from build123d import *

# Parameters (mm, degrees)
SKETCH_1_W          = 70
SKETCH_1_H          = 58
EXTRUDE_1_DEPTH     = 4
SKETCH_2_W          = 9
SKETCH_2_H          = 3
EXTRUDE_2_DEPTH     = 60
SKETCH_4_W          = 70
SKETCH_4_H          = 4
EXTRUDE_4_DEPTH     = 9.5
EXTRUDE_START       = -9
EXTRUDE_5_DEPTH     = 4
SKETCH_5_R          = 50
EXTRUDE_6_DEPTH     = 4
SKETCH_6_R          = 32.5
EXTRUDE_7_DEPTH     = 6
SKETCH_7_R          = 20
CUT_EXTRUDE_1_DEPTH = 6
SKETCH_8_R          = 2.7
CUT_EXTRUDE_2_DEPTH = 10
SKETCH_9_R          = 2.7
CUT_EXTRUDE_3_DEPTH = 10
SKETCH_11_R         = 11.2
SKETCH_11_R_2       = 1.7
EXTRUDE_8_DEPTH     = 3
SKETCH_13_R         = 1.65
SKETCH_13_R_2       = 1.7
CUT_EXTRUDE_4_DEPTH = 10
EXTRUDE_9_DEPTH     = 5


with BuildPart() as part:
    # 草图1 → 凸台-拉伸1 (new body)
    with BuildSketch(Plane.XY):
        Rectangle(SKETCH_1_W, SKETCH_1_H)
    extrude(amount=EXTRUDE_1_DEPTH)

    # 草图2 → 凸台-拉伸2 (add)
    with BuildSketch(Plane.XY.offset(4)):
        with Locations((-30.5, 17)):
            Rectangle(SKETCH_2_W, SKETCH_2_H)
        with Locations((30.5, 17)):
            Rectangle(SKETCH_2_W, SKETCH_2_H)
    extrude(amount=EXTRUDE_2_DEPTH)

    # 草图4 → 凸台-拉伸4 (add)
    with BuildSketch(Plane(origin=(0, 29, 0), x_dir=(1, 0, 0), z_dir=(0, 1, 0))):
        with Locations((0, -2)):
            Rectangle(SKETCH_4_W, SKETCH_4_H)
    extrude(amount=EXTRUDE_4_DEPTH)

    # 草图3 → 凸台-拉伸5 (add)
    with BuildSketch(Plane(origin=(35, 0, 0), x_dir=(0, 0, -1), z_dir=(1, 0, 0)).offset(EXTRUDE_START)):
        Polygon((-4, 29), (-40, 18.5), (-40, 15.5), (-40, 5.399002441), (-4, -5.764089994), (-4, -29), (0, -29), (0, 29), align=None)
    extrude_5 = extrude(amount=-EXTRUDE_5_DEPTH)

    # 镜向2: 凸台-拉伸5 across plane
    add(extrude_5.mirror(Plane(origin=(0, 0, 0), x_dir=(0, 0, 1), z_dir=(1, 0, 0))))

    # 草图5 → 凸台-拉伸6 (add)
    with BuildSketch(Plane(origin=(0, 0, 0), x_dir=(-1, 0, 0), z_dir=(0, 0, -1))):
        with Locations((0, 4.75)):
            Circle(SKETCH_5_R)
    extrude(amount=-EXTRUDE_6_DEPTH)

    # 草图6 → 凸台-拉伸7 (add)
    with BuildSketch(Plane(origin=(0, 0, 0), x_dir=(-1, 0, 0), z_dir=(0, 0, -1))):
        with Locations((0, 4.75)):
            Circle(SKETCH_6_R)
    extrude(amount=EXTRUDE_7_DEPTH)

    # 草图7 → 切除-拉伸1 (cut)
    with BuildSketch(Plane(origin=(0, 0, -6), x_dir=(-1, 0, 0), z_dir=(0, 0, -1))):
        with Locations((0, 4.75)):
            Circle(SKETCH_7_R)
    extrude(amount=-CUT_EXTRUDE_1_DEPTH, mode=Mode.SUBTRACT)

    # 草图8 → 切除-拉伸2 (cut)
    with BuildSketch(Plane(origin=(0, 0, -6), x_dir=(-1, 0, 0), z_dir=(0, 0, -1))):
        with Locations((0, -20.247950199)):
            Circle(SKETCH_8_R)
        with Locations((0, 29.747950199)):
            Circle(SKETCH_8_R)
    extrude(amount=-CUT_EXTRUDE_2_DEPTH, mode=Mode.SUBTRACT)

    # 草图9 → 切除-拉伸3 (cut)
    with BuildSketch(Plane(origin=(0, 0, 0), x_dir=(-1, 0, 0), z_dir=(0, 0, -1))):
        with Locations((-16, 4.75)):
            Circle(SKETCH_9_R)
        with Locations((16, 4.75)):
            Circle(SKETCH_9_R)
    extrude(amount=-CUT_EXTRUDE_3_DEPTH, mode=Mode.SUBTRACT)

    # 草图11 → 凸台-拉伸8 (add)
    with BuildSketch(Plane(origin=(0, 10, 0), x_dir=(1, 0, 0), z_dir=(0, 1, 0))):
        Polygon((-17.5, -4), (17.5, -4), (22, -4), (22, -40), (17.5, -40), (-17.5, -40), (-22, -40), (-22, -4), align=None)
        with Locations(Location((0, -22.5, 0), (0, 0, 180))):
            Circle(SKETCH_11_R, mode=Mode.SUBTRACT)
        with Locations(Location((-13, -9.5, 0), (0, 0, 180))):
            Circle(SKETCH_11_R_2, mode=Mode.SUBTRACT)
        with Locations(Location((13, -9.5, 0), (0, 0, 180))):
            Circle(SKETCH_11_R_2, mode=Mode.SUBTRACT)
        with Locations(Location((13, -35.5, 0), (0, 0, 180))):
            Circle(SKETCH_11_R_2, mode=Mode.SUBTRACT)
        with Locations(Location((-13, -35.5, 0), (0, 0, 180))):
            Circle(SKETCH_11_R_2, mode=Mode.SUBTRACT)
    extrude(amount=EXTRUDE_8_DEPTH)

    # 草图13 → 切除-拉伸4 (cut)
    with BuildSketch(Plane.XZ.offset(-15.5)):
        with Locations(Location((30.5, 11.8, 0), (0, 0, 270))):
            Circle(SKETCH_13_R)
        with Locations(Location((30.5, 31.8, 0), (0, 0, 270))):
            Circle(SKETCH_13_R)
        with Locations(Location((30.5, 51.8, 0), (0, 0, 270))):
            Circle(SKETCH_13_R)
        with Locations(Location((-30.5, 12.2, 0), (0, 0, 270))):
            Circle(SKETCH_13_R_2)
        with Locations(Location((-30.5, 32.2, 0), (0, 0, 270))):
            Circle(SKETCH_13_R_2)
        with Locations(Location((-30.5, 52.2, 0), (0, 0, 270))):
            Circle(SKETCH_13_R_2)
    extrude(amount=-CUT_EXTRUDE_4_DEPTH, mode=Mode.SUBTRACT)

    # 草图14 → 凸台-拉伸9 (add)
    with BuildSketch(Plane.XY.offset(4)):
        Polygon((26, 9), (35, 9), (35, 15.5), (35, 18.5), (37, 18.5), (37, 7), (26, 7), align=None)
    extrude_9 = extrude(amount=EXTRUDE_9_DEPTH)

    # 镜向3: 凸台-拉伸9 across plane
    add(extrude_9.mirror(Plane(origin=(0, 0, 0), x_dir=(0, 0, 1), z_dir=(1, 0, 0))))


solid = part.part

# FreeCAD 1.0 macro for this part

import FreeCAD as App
import Part
import Sketcher
from FreeCAD import Vector
Q = App.Units.Quantity

doc = App.newDocument("Part")
body = doc.addObject("PartDesign::Body", "Body")

# Sketch on XY plane
sketch1 = doc.addObject("Sketcher::SketchObject", "Sketch")
body.addObject(sketch1)
sketch1.AttachmentSupport = (doc.XY_Plane, [""])
sketch1.MapMode = "FlatFace"
sketch1.addGeometry([
    Part.LineSegment(Vector(-35, 29, 0), Vector(-35, -29, 0)),
    Part.LineSegment(Vector(-35, -29, 0), Vector(35, -29, 0)),
    Part.LineSegment(Vector(35, -29, 0), Vector(35, 29, 0)),
    Part.LineSegment(Vector(35, 29, 0), Vector(-35, 29, 0)),
], False)
sketch1.addConstraint([
    Sketcher.Constraint("Coincident", 0, 2, 1, 1),
    Sketcher.Constraint("Coincident", 1, 2, 2, 1),
    Sketcher.Constraint("Coincident", 2, 2, 3, 1),
    Sketcher.Constraint("Coincident", 3, 2, 0, 1),
    Sketcher.Constraint("Vertical", 0),
    Sketcher.Constraint("Horizontal", 1),
    Sketcher.Constraint("Vertical", 2),
    Sketcher.Constraint("Horizontal", 3),
    Sketcher.Constraint("Symmetric", 0, 2, 2, 2, -1, 1),
    Sketcher.Constraint("DistanceX", 1, 1, 1, 2, Q("70 mm")),
    Sketcher.Constraint("DistanceY", 0, 2, 0, 1, Q("58 mm")),
])
pad1 = doc.addObject("PartDesign::Pad", "Pad")
body.addObject(pad1)
pad1.Profile = sketch1
pad1.Length = 4

# Sketch on XY plane
sketch2 = doc.addObject("Sketcher::SketchObject", "Sketch001")
body.addObject(sketch2)
sketch2.AttachmentSupport = (doc.XY_Plane, [""])
sketch2.MapMode = "FlatFace"
sketch2.AttachmentOffset = App.Placement(Vector(0, 0, 4), App.Rotation())
sketch2.addGeometry([
    Part.LineSegment(Vector(-35, 18.5, 0), Vector(-35, 15.5, 0)),  # 0
    Part.LineSegment(Vector(-35, 15.5, 0), Vector(-26, 15.5, 0)),  # 1
    Part.LineSegment(Vector(-26, 15.5, 0), Vector(-26, 18.5, 0)),  # 2
    Part.LineSegment(Vector(-26, 18.5, 0), Vector(-35, 18.5, 0)),  # 3
    Part.LineSegment(Vector(26, 18.5, 0), Vector(26, 15.5, 0)),  # 4
    Part.LineSegment(Vector(26, 15.5, 0), Vector(35, 15.5, 0)),  # 5
    Part.LineSegment(Vector(35, 15.5, 0), Vector(35, 18.5, 0)),  # 6
    Part.LineSegment(Vector(35, 18.5, 0), Vector(26, 18.5, 0)),  # 7
], False)
sketch2.addConstraint([
    Sketcher.Constraint("Coincident", 0, 2, 1, 1),
    Sketcher.Constraint("Coincident", 1, 2, 2, 1),
    Sketcher.Constraint("Coincident", 2, 2, 3, 1),
    Sketcher.Constraint("Coincident", 3, 2, 0, 1),
    Sketcher.Constraint("Coincident", 4, 2, 5, 1),
    Sketcher.Constraint("Coincident", 5, 2, 6, 1),
    Sketcher.Constraint("Coincident", 6, 2, 7, 1),
    Sketcher.Constraint("Coincident", 7, 2, 4, 1),
    Sketcher.Constraint("Vertical", 0),
    Sketcher.Constraint("Horizontal", 1),
    Sketcher.Constraint("Vertical", 2),
    Sketcher.Constraint("Horizontal", 3),
    Sketcher.Constraint("Vertical", 4),
    Sketcher.Constraint("Horizontal", 5),
    Sketcher.Constraint("Vertical", 6),
    Sketcher.Constraint("Horizontal", 7),
    Sketcher.Constraint("Symmetric", 1, 2, 4, 2, -2),
    Sketcher.Constraint("Symmetric", 3, 2, 6, 2, -2),
    Sketcher.Constraint("DistanceX", 1, 1, 1, 2, Q("9 mm")),
    Sketcher.Constraint("DistanceY", 0, 2, 0, 1, Q("3 mm")),
    Sketcher.Constraint("DistanceX", 0, 2, -1, 1, Q("35 mm")),
    Sketcher.Constraint("DistanceY", -1, 1, 0, 2, Q("15.5 mm")),
])
pad2 = doc.addObject("PartDesign::Pad", "Pad001")
body.addObject(pad2)
pad2.Profile = sketch2
pad2.Length = 60

# Sketch on XZ plane
sketch3 = doc.addObject("Sketcher::SketchObject", "Sketch002")
body.addObject(sketch3)
sketch3.AttachmentSupport = (doc.XZ_Plane, [""])
sketch3.MapMode = "FlatFace"
sketch3.AttachmentOffset = App.Placement(Vector(0, 0, -29), App.Rotation())
sketch3.addGeometry([
    Part.LineSegment(Vector(-35, 0, 0), Vector(-35, 4, 0)),
    Part.LineSegment(Vector(-35, 4, 0), Vector(35, 4, 0)),
    Part.LineSegment(Vector(35, 4, 0), Vector(35, 0, 0)),
    Part.LineSegment(Vector(35, 0, 0), Vector(-35, 0, 0)),
], False)
sketch3.addConstraint([
    Sketcher.Constraint("Coincident", 0, 2, 1, 1),
    Sketcher.Constraint("Coincident", 1, 2, 2, 1),
    Sketcher.Constraint("Coincident", 2, 2, 3, 1),
    Sketcher.Constraint("Coincident", 3, 2, 0, 1),
    Sketcher.Constraint("Vertical", 0),
    Sketcher.Constraint("Horizontal", 1),
    Sketcher.Constraint("Vertical", 2),
    Sketcher.Constraint("Horizontal", 3),
    Sketcher.Constraint("Symmetric", 2, 2, 3, 2, -1, 1),
    Sketcher.Constraint("DistanceX", 1, 1, 1, 2, Q("70 mm")),
    Sketcher.Constraint("DistanceY", 0, 1, 0, 2, Q("4 mm")),
])
pad3 = doc.addObject("PartDesign::Pad", "Pad002")
body.addObject(pad3)
pad3.Profile = sketch3
pad3.Length = 9.5
pad3.Reversed = True

# Sketch on YZ plane
sketch4 = doc.addObject("Sketcher::SketchObject", "Sketch003")
body.addObject(sketch4)
sketch4.AttachmentSupport = (doc.YZ_Plane, [""])
sketch4.MapMode = "FlatFace"
sketch4.AttachmentOffset = App.Placement(Vector(0, 0, 26), App.Rotation())
sketch4.addGeometry([
    Part.LineSegment(Vector(29, 4, 0), Vector(18.5, 40, 0)),  # 0
    Part.LineSegment(Vector(18.5, 40, 0), Vector(5.4, 40, 0)),  # 1
    Part.LineSegment(Vector(5.4, 40, 0), Vector(-5.8, 4, 0)),  # 2
    Part.LineSegment(Vector(-5.8, 4, 0), Vector(-29, 4, 0)),  # 3
    Part.LineSegment(Vector(-29, 4, 0), Vector(-29, 0, 0)),  # 4
    Part.LineSegment(Vector(-29, 0, 0), Vector(29, 0, 0)),  # 5
    Part.LineSegment(Vector(29, 0, 0), Vector(29, 4, 0)),  # 6
], False)
sketch4.addConstraint([
    Sketcher.Constraint("Coincident", 0, 2, 1, 1),
    Sketcher.Constraint("Coincident", 1, 2, 2, 1),
    Sketcher.Constraint("Coincident", 2, 2, 3, 1),
    Sketcher.Constraint("Coincident", 3, 2, 4, 1),
    Sketcher.Constraint("Coincident", 4, 2, 5, 1),
    Sketcher.Constraint("Coincident", 5, 2, 6, 1),
    Sketcher.Constraint("Coincident", 6, 2, 0, 1),
    Sketcher.Constraint("Horizontal", 1),
    Sketcher.Constraint("Horizontal", 3),
    Sketcher.Constraint("Vertical", 4),
    Sketcher.Constraint("Horizontal", 5),
    Sketcher.Constraint("Vertical", 6),
    Sketcher.Constraint("Symmetric", 4, 2, 5, 2, -1, 1),
    Sketcher.Constraint("Horizontal", 3, 2, 6, 2),
    Sketcher.Constraint("DistanceX", 5, 1, 5, 2, Q("58 mm")),
    Sketcher.Constraint("DistanceY", 4, 2, 4, 1, Q("4 mm")),
    Sketcher.Constraint("DistanceY", -1, 1, 0, 2, Q("40 mm")),
    Sketcher.Constraint("Distance", 0, Q("37.5 mm")),
    Sketcher.Constraint("DistanceX", 3, 2, 3, 1, Q("23.23591 mm")),
    Sketcher.Constraint("Distance", 2, Q("37.691042 mm")),
])
pad4 = doc.addObject("PartDesign::Pad", "Pad003")
body.addObject(pad4)
pad4.Profile = sketch4
pad4.Length = 4
pad4.Reversed = True
doc.recompute()

mirrored = doc.addObject("PartDesign::Mirrored", "Mirrored")
body.addObject(mirrored)
mirrored.Originals = [pad4]
mirrored.MirrorPlane = (doc.YZ_Plane, [""])
body.Tip = mirrored

# Sketch on XY plane
sketch5 = doc.addObject("Sketcher::SketchObject", "Sketch004")
body.addObject(sketch5)
sketch5.AttachmentSupport = (doc.XY_Plane, [""])
sketch5.MapMode = "FlatFace"
sketch5.addGeometry(Part.Circle(Vector(0, 5, 0), Vector(0, 0, 1), 50), False)
sketch5.addConstraint([
    Sketcher.Constraint("PointOnObject", 0, 3, -2),
    Sketcher.Constraint("Diameter", 0, Q("100 mm")),
    Sketcher.Constraint("DistanceY", -1, 1, 0, 3, Q("4.75 mm")),
])
pad5 = doc.addObject("PartDesign::Pad", "Pad004")
body.addObject(pad5)
pad5.Profile = sketch5
pad5.Length = 4

# Sketch on XY plane
sketch6 = doc.addObject("Sketcher::SketchObject", "Sketch005")
body.addObject(sketch6)
sketch6.AttachmentSupport = (doc.XY_Plane, [""])
sketch6.MapMode = "FlatFace"
sketch6.addGeometry(Part.Circle(Vector(0, 5, 0), Vector(0, 0, 1), 32), False)
sketch6.addConstraint([
    Sketcher.Constraint("PointOnObject", 0, 3, -2),
    Sketcher.Constraint("Diameter", 0, Q("65 mm")),
    Sketcher.Constraint("DistanceY", -1, 1, 0, 3, Q("4.75 mm")),
])
pad6 = doc.addObject("PartDesign::Pad", "Pad005")
body.addObject(pad6)
pad6.Profile = sketch6
pad6.Length = 6
pad6.Reversed = True

# Sketch on XY plane
sketch7 = doc.addObject("Sketcher::SketchObject", "Sketch006")
body.addObject(sketch7)
sketch7.AttachmentSupport = (doc.XY_Plane, [""])
sketch7.MapMode = "FlatFace"
sketch7.AttachmentOffset = App.Placement(Vector(0, 0, -6), App.Rotation())
sketch7.addGeometry(Part.Circle(Vector(0, 5, 0), Vector(0, 0, 1), 20), False)
sketch7.addConstraint([
    Sketcher.Constraint("PointOnObject", 0, 3, -2),
    Sketcher.Constraint("Diameter", 0, Q("40 mm")),
    Sketcher.Constraint("DistanceY", -1, 1, 0, 3, Q("4.75 mm")),
])
pocket1 = doc.addObject("PartDesign::Pocket", "Pocket")
body.addObject(pocket1)
pocket1.Profile = sketch7
pocket1.Length = 6
pocket1.Reversed = True

# Sketch on XY plane
sketch8 = doc.addObject("Sketcher::SketchObject", "Sketch007")
body.addObject(sketch8)
sketch8.AttachmentSupport = (doc.XY_Plane, [""])
sketch8.MapMode = "FlatFace"
sketch8.AttachmentOffset = App.Placement(Vector(0, 0, -6), App.Rotation())
sketch8.addGeometry([
    Part.Circle(Vector(0, -20.2, 0), Vector(0, 0, 1), 2.7),
    Part.Circle(Vector(0, 29.7, 0), Vector(0, 0, 1), 2.7),
], False)
sketch8.addConstraint([
    Sketcher.Constraint("Equal", 0, 1),
    Sketcher.Constraint("PointOnObject", 0, 3, -2),
    Sketcher.Constraint("PointOnObject", 1, 3, -2),
    Sketcher.Constraint("Diameter", 0, Q("5.4 mm")),
    Sketcher.Constraint("DistanceY", 0, 3, 1, 3, Q("49.9959 mm")),
    Sketcher.Constraint("DistanceY", 0, 3, -1, 1, Q("20.24795 mm")),
])
pocket2 = doc.addObject("PartDesign::Pocket", "Pocket001")
body.addObject(pocket2)
pocket2.Profile = sketch8
pocket2.Length = 10
pocket2.Reversed = True

# Sketch on XY plane
sketch9 = doc.addObject("Sketcher::SketchObject", "Sketch008")
body.addObject(sketch9)
sketch9.AttachmentSupport = (doc.XY_Plane, [""])
sketch9.MapMode = "FlatFace"
sketch9.addGeometry([
    Part.Circle(Vector(16, 4.8, 0), Vector(0, 0, 1), 2.7),
    Part.Circle(Vector(-16, 4.8, 0), Vector(0, 0, 1), 2.7),
], False)
sketch9.addConstraint([
    Sketcher.Constraint("Equal", 0, 1),
    Sketcher.Constraint("Symmetric", 0, 3, 1, 3, -2),
    Sketcher.Constraint("Diameter", 0, Q("5.4 mm")),
    Sketcher.Constraint("DistanceX", -1, 1, 0, 3, Q("16 mm")),
    Sketcher.Constraint("DistanceY", -1, 1, 0, 3, Q("4.75 mm")),
])
pocket3 = doc.addObject("PartDesign::Pocket", "Pocket002")
body.addObject(pocket3)
pocket3.Profile = sketch9
pocket3.Length = 10
pocket3.Reversed = True

# Sketch on XZ plane
sketch10 = doc.addObject("Sketcher::SketchObject", "Sketch009")
body.addObject(sketch10)
sketch10.AttachmentSupport = (doc.XZ_Plane, [""])
sketch10.MapMode = "FlatFace"
sketch10.AttachmentOffset = App.Placement(Vector(0, 0, -10), App.Rotation())
sketch10.addGeometry([
    Part.LineSegment(Vector(22, 4, 0), Vector(-22, 4, 0)),  # 0
    Part.LineSegment(Vector(-22, 4, 0), Vector(-22, 40, 0)),  # 1
    Part.LineSegment(Vector(-22, 40, 0), Vector(22, 40, 0)),  # 2
    Part.LineSegment(Vector(22, 40, 0), Vector(22, 4, 0)),  # 3
    Part.Circle(Vector(13, 35.5, 0), Vector(0, 0, 1), 1.7),  # 4
    Part.Circle(Vector(-13, 35.5, 0), Vector(0, 0, 1), 1.7),  # 5
    Part.Circle(Vector(13, 9.5, 0), Vector(0, 0, 1), 1.7),  # 6
    Part.Circle(Vector(0, 22.5, 0), Vector(0, 0, 1), 11.2),  # 7
    Part.Circle(Vector(-13, 9.5, 0), Vector(0, 0, 1), 1.7),  # 8
], False)
sketch10.addConstraint([
    Sketcher.Constraint("Coincident", 0, 2, 1, 1),
    Sketcher.Constraint("Coincident", 1, 2, 2, 1),
    Sketcher.Constraint("Coincident", 2, 2, 3, 1),
    Sketcher.Constraint("Coincident", 3, 2, 0, 1),
    Sketcher.Constraint("Horizontal", 0),
    Sketcher.Constraint("Vertical", 1),
    Sketcher.Constraint("Horizontal", 2),
    Sketcher.Constraint("Vertical", 3),
    Sketcher.Constraint("Equal", 4, 5),
    Sketcher.Constraint("Equal", 5, 6),
    Sketcher.Constraint("Equal", 6, 8),
    Sketcher.Constraint("Symmetric", 4, 3, 5, 3, -2),
    Sketcher.Constraint("Symmetric", 6, 3, 8, 3, -2),
    Sketcher.Constraint("PointOnObject", 7, 3, -2),
    Sketcher.Constraint("Vertical", 4, 3, 6, 3),
    Sketcher.Constraint("Diameter", 4, Q("3.4 mm")),
    Sketcher.Constraint("Diameter", 7, Q("22.4 mm")),
    Sketcher.Constraint("DistanceX", 0, 2, 0, 1, Q("44 mm")),
    Sketcher.Constraint("DistanceY", 1, 1, 1, 2, Q("36 mm")),
    Sketcher.Constraint("DistanceX", -1, 1, 4, 3, Q("13 mm")),
    Sketcher.Constraint("DistanceX", 0, 2, -1, 1, Q("22 mm")),
    Sketcher.Constraint("DistanceY", -1, 1, 0, 2, Q("4 mm")),
    Sketcher.Constraint("DistanceY", 6, 3, 4, 3, Q("26 mm")),
    Sketcher.Constraint("DistanceY", 7, 3, 4, 3, Q("13 mm")),
    Sketcher.Constraint("DistanceY", -1, 1, 4, 3, Q("35.5 mm")),
])
pad7 = doc.addObject("PartDesign::Pad", "Pad006")
body.addObject(pad7)
pad7.Profile = sketch10
pad7.Length = 3
pad7.Reversed = True

# Sketch on XZ plane
sketch11 = doc.addObject("Sketcher::SketchObject", "Sketch010")
body.addObject(sketch11)
sketch11.AttachmentSupport = (doc.XZ_Plane, [""])
sketch11.MapMode = "FlatFace"
sketch11.AttachmentOffset = App.Placement(Vector(0, 0, -15.5), App.Rotation())
sketch11.addGeometry([
    Part.Circle(Vector(30.5, 11.8, 0), Vector(0, 0, 1), 1.6),  # 0
    Part.Circle(Vector(30.5, 31.8, 0), Vector(0, 0, 1), 1.6),  # 1
    Part.Circle(Vector(30.5, 51.8, 0), Vector(0, 0, 1), 1.6),  # 2
    Part.Circle(Vector(-30.5, 12.2, 0), Vector(0, 0, 1), 1.7),  # 3
    Part.Circle(Vector(-30.5, 32.2, 0), Vector(0, 0, 1), 1.7),  # 4
    Part.Circle(Vector(-30.5, 52.2, 0), Vector(0, 0, 1), 1.7),  # 5
], False)
sketch11.addConstraint([
    Sketcher.Constraint("Equal", 0, 1),
    Sketcher.Constraint("Equal", 1, 2),
    Sketcher.Constraint("Equal", 3, 4),
    Sketcher.Constraint("Equal", 4, 5),
    Sketcher.Constraint("Vertical", 0, 3, 1, 3),
    Sketcher.Constraint("Vertical", 1, 3, 2, 3),
    Sketcher.Constraint("Vertical", 3, 3, 4, 3),
    Sketcher.Constraint("Vertical", 4, 3, 5, 3),
    Sketcher.Constraint("Diameter", 0, Q("3.3 mm")),
    Sketcher.Constraint("Diameter", 3, Q("3.4 mm")),
    Sketcher.Constraint("DistanceY", 0, 3, 1, 3, Q("20 mm")),
    Sketcher.Constraint("DistanceY", 1, 3, 2, 3, Q("20 mm")),
    Sketcher.Constraint("DistanceX", 3, 3, 0, 3, Q("61 mm")),
    Sketcher.Constraint("DistanceY", 3, 3, 4, 3, Q("20 mm")),
    Sketcher.Constraint("DistanceY", 4, 3, 5, 3, Q("20 mm")),
    Sketcher.Constraint("DistanceX", -1, 1, 0, 3, Q("30.5 mm")),
    Sketcher.Constraint("DistanceY", -1, 1, 0, 3, Q("11.8 mm")),
    Sketcher.Constraint("DistanceY", -1, 1, 3, 3, Q("12.2 mm")),
])
pocket4 = doc.addObject("PartDesign::Pocket", "Pocket003")
body.addObject(pocket4)
pocket4.Profile = sketch11
pocket4.Length = 10

# Sketch on XY plane
sketch12 = doc.addObject("Sketcher::SketchObject", "Sketch011")
body.addObject(sketch12)
sketch12.AttachmentSupport = (doc.XY_Plane, [""])
sketch12.MapMode = "FlatFace"
sketch12.AttachmentOffset = App.Placement(Vector(0, 0, 4), App.Rotation())
sketch12.addGeometry([
    Part.LineSegment(Vector(35, 9, 0), Vector(26, 9, 0)),  # 0
    Part.LineSegment(Vector(26, 9, 0), Vector(26, 7, 0)),  # 1
    Part.LineSegment(Vector(26, 7, 0), Vector(37, 7, 0)),  # 2
    Part.LineSegment(Vector(37, 7, 0), Vector(37, 18.5, 0)),  # 3
    Part.LineSegment(Vector(37, 18.5, 0), Vector(35, 18.5, 0)),  # 4
    Part.LineSegment(Vector(35, 18.5, 0), Vector(35, 9, 0)),  # 5
], False)
sketch12.addConstraint([
    Sketcher.Constraint("Coincident", 0, 2, 1, 1),
    Sketcher.Constraint("Coincident", 1, 2, 2, 1),
    Sketcher.Constraint("Coincident", 2, 2, 3, 1),
    Sketcher.Constraint("Coincident", 3, 2, 4, 1),
    Sketcher.Constraint("Coincident", 4, 2, 5, 1),
    Sketcher.Constraint("Coincident", 5, 2, 0, 1),
    Sketcher.Constraint("Horizontal", 0),
    Sketcher.Constraint("Vertical", 1),
    Sketcher.Constraint("Horizontal", 2),
    Sketcher.Constraint("Vertical", 3),
    Sketcher.Constraint("Horizontal", 4),
    Sketcher.Constraint("Vertical", 5),
    Sketcher.Constraint("Equal", 4, 1),
    Sketcher.Constraint("DistanceX", 0, 2, 0, 1, Q("9 mm")),
    Sketcher.Constraint("DistanceX", 2, 1, 2, 2, Q("11 mm")),
    Sketcher.Constraint("DistanceY", 3, 1, 3, 2, Q("11.5 mm")),
    Sketcher.Constraint("DistanceX", -1, 1, 0, 2, Q("26 mm")),
    Sketcher.Constraint("DistanceY", -1, 1, 0, 2, Q("9 mm")),
])
pad8 = doc.addObject("PartDesign::Pad", "Pad007")
body.addObject(pad8)
pad8.Profile = sketch12
pad8.Length = 5
doc.recompute()

mirrored2 = doc.addObject("PartDesign::Mirrored", "Mirrored001")
body.addObject(mirrored2)
mirrored2.Originals = [pad8]
mirrored2.MirrorPlane = (doc.YZ_Plane, [""])
body.Tip = mirrored2

doc.recompute()
